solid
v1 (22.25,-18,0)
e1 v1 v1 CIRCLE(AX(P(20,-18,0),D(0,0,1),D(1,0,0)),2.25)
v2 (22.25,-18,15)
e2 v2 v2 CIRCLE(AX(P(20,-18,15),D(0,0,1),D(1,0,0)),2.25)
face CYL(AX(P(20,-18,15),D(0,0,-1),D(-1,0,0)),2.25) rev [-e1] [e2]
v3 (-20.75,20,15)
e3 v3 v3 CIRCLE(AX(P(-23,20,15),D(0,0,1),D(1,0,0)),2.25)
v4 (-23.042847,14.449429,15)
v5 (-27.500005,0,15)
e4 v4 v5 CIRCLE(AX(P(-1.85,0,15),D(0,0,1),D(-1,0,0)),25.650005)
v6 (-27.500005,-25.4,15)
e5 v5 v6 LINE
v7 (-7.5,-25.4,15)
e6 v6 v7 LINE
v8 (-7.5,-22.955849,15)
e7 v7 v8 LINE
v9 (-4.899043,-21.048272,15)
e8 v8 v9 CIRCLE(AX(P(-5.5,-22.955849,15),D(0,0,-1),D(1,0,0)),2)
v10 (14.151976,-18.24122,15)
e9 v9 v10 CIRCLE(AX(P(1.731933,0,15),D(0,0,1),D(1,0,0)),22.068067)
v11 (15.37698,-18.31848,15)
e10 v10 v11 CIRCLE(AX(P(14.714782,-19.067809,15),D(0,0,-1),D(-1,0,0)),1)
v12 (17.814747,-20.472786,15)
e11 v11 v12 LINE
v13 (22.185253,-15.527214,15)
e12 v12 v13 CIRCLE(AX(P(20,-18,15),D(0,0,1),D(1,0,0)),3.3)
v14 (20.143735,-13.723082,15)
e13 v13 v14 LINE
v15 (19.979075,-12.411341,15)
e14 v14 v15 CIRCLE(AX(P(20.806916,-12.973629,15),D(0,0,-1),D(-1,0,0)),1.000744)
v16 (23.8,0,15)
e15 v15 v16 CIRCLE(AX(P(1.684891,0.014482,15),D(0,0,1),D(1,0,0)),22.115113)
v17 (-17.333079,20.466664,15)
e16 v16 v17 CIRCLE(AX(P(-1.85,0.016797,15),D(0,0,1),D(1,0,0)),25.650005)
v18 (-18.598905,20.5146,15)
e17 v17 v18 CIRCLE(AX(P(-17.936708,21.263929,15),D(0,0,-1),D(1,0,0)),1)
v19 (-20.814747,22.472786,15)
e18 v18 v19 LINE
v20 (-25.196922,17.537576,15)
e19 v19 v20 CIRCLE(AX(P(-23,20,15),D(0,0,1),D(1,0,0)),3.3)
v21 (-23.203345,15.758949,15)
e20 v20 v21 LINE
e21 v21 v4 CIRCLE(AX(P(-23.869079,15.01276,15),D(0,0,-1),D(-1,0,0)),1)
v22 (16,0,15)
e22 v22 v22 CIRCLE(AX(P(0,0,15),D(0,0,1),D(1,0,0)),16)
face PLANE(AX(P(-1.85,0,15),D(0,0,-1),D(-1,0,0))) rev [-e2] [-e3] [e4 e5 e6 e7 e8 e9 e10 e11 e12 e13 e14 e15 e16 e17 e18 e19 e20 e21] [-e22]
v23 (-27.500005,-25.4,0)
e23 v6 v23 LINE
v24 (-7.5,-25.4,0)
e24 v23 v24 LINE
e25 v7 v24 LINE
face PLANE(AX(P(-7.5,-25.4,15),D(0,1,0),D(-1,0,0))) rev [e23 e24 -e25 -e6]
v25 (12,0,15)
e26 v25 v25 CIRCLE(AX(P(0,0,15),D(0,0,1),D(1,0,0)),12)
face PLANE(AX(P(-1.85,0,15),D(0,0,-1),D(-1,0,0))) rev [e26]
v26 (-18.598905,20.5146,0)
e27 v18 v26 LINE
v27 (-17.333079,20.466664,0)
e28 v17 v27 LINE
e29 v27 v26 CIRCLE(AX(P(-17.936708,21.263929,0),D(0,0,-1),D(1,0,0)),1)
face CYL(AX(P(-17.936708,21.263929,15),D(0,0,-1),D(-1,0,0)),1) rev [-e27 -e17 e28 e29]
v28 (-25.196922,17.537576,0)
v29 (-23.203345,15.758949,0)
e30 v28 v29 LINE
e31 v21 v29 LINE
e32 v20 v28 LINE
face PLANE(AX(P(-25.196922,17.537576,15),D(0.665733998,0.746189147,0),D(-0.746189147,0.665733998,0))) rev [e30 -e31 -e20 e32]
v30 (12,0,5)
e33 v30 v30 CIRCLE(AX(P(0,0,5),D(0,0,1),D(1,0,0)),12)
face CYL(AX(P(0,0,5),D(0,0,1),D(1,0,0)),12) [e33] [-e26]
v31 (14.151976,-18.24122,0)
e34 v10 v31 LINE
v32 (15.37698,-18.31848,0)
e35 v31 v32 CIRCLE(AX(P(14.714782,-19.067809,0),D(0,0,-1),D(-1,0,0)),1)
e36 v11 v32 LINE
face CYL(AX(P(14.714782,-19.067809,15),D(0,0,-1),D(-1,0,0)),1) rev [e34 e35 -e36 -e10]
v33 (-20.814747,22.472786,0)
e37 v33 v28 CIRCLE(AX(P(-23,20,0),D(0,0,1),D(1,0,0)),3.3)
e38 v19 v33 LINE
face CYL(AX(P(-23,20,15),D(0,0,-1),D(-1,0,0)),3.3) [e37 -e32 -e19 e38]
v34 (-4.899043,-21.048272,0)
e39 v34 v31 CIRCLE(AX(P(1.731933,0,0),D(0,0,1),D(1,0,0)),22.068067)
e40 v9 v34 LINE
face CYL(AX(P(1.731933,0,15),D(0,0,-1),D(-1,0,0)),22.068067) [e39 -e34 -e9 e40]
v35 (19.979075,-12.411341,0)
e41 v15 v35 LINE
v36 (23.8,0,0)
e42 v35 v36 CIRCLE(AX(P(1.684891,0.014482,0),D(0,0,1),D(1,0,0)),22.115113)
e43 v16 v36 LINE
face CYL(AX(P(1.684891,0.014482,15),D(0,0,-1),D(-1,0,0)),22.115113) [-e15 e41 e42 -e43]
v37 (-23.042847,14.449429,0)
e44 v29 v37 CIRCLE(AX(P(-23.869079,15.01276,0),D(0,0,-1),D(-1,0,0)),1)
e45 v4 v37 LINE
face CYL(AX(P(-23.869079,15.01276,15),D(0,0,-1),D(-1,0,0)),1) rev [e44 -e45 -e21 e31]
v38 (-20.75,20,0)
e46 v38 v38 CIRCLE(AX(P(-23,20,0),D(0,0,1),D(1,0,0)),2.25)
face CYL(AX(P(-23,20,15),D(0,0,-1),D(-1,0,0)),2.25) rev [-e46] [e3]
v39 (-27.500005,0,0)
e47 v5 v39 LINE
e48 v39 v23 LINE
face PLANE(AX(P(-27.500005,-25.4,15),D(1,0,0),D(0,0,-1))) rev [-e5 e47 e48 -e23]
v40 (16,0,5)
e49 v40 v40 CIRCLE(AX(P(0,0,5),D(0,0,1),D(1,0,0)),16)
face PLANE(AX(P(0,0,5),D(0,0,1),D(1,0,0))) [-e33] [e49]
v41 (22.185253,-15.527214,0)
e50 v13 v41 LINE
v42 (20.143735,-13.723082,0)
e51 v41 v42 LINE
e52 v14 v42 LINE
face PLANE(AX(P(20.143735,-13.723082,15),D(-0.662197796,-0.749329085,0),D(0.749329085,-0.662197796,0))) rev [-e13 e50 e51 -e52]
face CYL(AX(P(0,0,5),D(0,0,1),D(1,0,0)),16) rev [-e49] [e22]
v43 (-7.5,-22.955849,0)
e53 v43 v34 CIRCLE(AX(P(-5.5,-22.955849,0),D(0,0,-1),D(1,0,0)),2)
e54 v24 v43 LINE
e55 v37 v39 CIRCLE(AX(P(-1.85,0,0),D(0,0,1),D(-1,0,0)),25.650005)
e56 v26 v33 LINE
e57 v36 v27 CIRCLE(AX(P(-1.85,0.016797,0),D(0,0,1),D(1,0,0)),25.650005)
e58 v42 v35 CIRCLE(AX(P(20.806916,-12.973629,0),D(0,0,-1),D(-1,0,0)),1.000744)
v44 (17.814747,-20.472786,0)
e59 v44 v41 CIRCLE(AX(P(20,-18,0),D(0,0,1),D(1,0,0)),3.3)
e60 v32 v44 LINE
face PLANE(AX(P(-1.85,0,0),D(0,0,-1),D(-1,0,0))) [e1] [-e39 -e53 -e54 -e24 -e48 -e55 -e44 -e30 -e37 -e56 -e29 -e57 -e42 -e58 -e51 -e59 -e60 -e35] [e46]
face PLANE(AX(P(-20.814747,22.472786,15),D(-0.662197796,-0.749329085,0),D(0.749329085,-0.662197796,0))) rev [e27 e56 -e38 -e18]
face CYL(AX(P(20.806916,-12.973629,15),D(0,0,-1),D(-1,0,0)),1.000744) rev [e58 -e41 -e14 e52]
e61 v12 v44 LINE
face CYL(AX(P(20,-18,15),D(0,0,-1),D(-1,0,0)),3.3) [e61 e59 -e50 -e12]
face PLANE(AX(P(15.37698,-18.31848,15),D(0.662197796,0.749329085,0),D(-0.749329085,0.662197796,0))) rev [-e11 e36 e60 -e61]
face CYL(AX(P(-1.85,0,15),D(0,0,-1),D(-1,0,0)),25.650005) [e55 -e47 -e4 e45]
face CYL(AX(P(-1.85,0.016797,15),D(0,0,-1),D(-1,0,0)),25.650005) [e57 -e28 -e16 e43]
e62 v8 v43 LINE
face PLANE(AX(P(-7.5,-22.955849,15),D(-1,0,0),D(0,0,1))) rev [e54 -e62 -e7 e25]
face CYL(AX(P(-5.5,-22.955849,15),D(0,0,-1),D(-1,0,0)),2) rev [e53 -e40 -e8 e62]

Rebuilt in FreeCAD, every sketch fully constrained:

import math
import FreeCAD as App
import Part
import Sketcher
Q = App.Units.Quantity

doc = App.newDocument("Part")
body = doc.addObject("PartDesign::Body", "Body")

# Sketch on XY plane
sketch1 = body.newObject("Sketcher::SketchObject", "Sketch")
sketch1.AttachmentSupport = (doc.getObject("XY_Plane"), [""])
sketch1.MapMode = "FlatFace"
sketch1.addGeometry([
    Part.LineSegment(App.Vector(-27.5, -25.4, 0), App.Vector(-7.5, -25.4, 0)),  # 0
    Part.LineSegment(App.Vector(-7.5, -25.4, 0), App.Vector(-7.5, -23, 0)),  # 1
    Part.ArcOfCircle(Part.Circle(App.Vector(-5.5, -23, 0), App.Vector(0, 0, 1), 2), math.radians(73), math.radians(180)),  # 2
    Part.ArcOfCircle(Part.Circle(App.Vector(1.7, 0, 0), App.Vector(0, 0, 1), 22.1), math.radians(-107), math.radians(-56)),  # 3
    Part.ArcOfCircle(Part.Circle(App.Vector(14.7, -19.1, 0), App.Vector(0, 0, 1), 1), math.radians(49), math.radians(124)),  # 4
    Part.LineSegment(App.Vector(15.4, -18.3, 0), App.Vector(17.8, -20.5, 0)),  # 5
    Part.ArcOfCircle(Part.Circle(App.Vector(20, -18, 0), App.Vector(0, 0, 1), 3.3), math.radians(-131), math.radians(49)),  # 6
    Part.LineSegment(App.Vector(22.2, -15.5, 0), App.Vector(20.1, -13.7, 0)),  # 7
    Part.ArcOfCircle(Part.Circle(App.Vector(20.8, -13, 0), App.Vector(0, 0, 1), 1), math.radians(146), math.radians(228)),  # 8
    Part.ArcOfCircle(Part.Circle(App.Vector(1.7, 0, 0), App.Vector(0, 0, 1), 22.1), math.radians(-34), math.radians(0)),  # 9
    Part.ArcOfCircle(Part.Circle(App.Vector(-1.9, 0, 0), App.Vector(0, 0, 1), 25.7), math.radians(0), math.radians(127)),  # 10
    Part.ArcOfCircle(Part.Circle(App.Vector(-17.9, 21.3, 0), App.Vector(0, 0, 1), 1), math.radians(-131), math.radians(-53)),  # 11
    Part.LineSegment(App.Vector(-18.6, 20.5, 0), App.Vector(-20.8, 22.5, 0)),  # 12
    Part.ArcOfCircle(Part.Circle(App.Vector(-23, 20, 0), App.Vector(0, 0, 1), 3.3), math.radians(49), math.radians(228)),  # 13
    Part.LineSegment(App.Vector(-25.2, 17.5, 0), App.Vector(-23.2, 15.8, 0)),  # 14
    Part.ArcOfCircle(Part.Circle(App.Vector(-23.9, 15, 0), App.Vector(0, 0, 1), 1), math.radians(-34), math.radians(48)),  # 15
    Part.ArcOfCircle(Part.Circle(App.Vector(-1.9, 0, 0), App.Vector(0, 0, 1), 25.7), math.radians(146), math.radians(180)),  # 16
    Part.LineSegment(App.Vector(-27.5, 0, 0), App.Vector(-27.5, -25.4, 0)),  # 17
    Part.Circle(App.Vector(20, -18, 0), App.Vector(0, 0, 1), 2.2),  # 18
    Part.Circle(App.Vector(-23, 20, 0), App.Vector(0, 0, 1), 2.2),  # 19
], False)
sketch1.addConstraint([
    Sketcher.Constraint("Coincident", 0, 2, 1, 1),
    Sketcher.Constraint("Tangent", 1, 2, 2, 2),
    Sketcher.Constraint("Tangent", 2, 1, 3, 1),
    Sketcher.Constraint("Tangent", 3, 2, 4, 2),
    Sketcher.Constraint("Tangent", 4, 1, 5, 1),
    Sketcher.Constraint("Tangent", 5, 2, 6, 1),
    Sketcher.Constraint("Tangent", 6, 2, 7, 1),
    Sketcher.Constraint("Coincident", 7, 2, 8, 2),
    Sketcher.Constraint("Tangent", 8, 1, 9, 1),
    Sketcher.Constraint("Tangent", 9, 2, 10, 1),
    Sketcher.Constraint("Tangent", 10, 2, 11, 2),
    Sketcher.Constraint("Tangent", 11, 1, 12, 1),
    Sketcher.Constraint("Tangent", 12, 2, 13, 1),
    Sketcher.Constraint("Tangent", 13, 2, 14, 1),
    Sketcher.Constraint("Tangent", 14, 2, 15, 2),
    Sketcher.Constraint("Tangent", 15, 1, 16, 1),
    Sketcher.Constraint("Tangent", 16, 2, 17, 1),
    Sketcher.Constraint("Coincident", 17, 2, 0, 1),
    Sketcher.Constraint("Horizontal", 0),
    Sketcher.Constraint("Vertical", 1),
    Sketcher.Constraint("Vertical", 17),
    Sketcher.Constraint("Coincident", 18, 3, 6, 3),
    Sketcher.Constraint("Coincident", 19, 3, 13, 3),
    Sketcher.Constraint("Equal", 4, 11),
    Sketcher.Constraint("Equal", 6, 13),
    Sketcher.Constraint("Equal", 11, 15),
    Sketcher.Constraint("Equal", 10, 16),
    Sketcher.Constraint("Equal", 18, 19),
    Sketcher.Constraint("PointOnObject", 3, 3, -1),
    Sketcher.Constraint("PointOnObject", 16, 3, -1),
    Sketcher.Constraint("PointOnObject", 9, 2, -1),
    Sketcher.Constraint("Parallel", 5, 7),
    Sketcher.Constraint("Parallel", 7, 12),
    Sketcher.Constraint("Vertical", 10, 3, 16, 3),
    Sketcher.Constraint("Radius", 2, Q("2 mm")),
    Sketcher.Constraint("Radius", 4, Q("1 mm")),
    Sketcher.Constraint("Diameter", 18, Q("4.5 mm")),
    Sketcher.Constraint("Radius", 6, Q("3.3 mm")),
    Sketcher.Constraint("DistanceY", 17, 2, 17, 1, Q("25.4 mm")),
    Sketcher.Constraint("DistanceX", -1, 1, 6, 3, Q("20 mm")),
    Sketcher.Constraint("DistanceY", 6, 3, -1, 1, Q("18 mm")),
    Sketcher.Constraint("DistanceX", 13, 3, -1, 1, Q("23 mm")),
    Sketcher.Constraint("DistanceY", -1, 1, 13, 3, Q("20 mm")),
    Sketcher.Constraint("DistanceX", 2, 3, -1, 1, Q("5.5 mm")),
    Sketcher.Constraint("DistanceX", -1, 1, 9, 2, Q("23.8 mm")),
    Sketcher.Constraint("DistanceX", 10, 3, -1, 1, Q("1.85 mm")),
    Sketcher.Constraint("Radius", 3, Q("22.068067 mm")),
    Sketcher.Constraint("Radius", 8, Q("1.000744 mm")),
    Sketcher.Constraint("Radius", 9, Q("22.115113 mm")),
    Sketcher.Constraint("DistanceX", 15, 3, 10, 2, Q("6.536 mm")),
    Sketcher.Constraint("Distance", 12, Q("2.957101 mm")),
    Sketcher.Constraint("DistanceY", 1, 1, 1, 2, Q("2.444151 mm")),
    Sketcher.Constraint("DistanceY", -1, 1, 11, 1, Q("20.5146 mm")),
    Sketcher.Constraint("DistanceY", 4, 1, 7, 2, Q("4.595398 mm")),
])
pad1 = body.newObject("PartDesign::Pad", "Pad")
pad1.Profile = sketch1
pad1.Length = 15

# Sketch on XY plane
sketch2 = body.newObject("Sketcher::SketchObject", "Sketch001")
sketch2.AttachmentSupport = (doc.getObject("XY_Plane"), [""])
sketch2.MapMode = "FlatFace"
sketch2.AttachmentOffset = App.Placement(App.Vector(0, 0, 15), App.Rotation())
sketch2.addGeometry([
    Part.Circle(App.Vector(0, 0, 0), App.Vector(0, 0, 1), 16),
    Part.Circle(App.Vector(0, 0, 0), App.Vector(0, 0, 1), 12),
], False)
sketch2.addConstraint([
    Sketcher.Constraint("Coincident", 0, 3, -1, 1),
    Sketcher.Constraint("Coincident", 1, 3, -1, 1),
    Sketcher.Constraint("Diameter", 0, Q("32 mm")),
    Sketcher.Constraint("Diameter", 1, Q("24 mm")),
])
pocket1 = body.newObject("PartDesign::Pocket", "Pocket")
pocket1.Profile = sketch2
pocket1.Length = 10

doc.recompute()
